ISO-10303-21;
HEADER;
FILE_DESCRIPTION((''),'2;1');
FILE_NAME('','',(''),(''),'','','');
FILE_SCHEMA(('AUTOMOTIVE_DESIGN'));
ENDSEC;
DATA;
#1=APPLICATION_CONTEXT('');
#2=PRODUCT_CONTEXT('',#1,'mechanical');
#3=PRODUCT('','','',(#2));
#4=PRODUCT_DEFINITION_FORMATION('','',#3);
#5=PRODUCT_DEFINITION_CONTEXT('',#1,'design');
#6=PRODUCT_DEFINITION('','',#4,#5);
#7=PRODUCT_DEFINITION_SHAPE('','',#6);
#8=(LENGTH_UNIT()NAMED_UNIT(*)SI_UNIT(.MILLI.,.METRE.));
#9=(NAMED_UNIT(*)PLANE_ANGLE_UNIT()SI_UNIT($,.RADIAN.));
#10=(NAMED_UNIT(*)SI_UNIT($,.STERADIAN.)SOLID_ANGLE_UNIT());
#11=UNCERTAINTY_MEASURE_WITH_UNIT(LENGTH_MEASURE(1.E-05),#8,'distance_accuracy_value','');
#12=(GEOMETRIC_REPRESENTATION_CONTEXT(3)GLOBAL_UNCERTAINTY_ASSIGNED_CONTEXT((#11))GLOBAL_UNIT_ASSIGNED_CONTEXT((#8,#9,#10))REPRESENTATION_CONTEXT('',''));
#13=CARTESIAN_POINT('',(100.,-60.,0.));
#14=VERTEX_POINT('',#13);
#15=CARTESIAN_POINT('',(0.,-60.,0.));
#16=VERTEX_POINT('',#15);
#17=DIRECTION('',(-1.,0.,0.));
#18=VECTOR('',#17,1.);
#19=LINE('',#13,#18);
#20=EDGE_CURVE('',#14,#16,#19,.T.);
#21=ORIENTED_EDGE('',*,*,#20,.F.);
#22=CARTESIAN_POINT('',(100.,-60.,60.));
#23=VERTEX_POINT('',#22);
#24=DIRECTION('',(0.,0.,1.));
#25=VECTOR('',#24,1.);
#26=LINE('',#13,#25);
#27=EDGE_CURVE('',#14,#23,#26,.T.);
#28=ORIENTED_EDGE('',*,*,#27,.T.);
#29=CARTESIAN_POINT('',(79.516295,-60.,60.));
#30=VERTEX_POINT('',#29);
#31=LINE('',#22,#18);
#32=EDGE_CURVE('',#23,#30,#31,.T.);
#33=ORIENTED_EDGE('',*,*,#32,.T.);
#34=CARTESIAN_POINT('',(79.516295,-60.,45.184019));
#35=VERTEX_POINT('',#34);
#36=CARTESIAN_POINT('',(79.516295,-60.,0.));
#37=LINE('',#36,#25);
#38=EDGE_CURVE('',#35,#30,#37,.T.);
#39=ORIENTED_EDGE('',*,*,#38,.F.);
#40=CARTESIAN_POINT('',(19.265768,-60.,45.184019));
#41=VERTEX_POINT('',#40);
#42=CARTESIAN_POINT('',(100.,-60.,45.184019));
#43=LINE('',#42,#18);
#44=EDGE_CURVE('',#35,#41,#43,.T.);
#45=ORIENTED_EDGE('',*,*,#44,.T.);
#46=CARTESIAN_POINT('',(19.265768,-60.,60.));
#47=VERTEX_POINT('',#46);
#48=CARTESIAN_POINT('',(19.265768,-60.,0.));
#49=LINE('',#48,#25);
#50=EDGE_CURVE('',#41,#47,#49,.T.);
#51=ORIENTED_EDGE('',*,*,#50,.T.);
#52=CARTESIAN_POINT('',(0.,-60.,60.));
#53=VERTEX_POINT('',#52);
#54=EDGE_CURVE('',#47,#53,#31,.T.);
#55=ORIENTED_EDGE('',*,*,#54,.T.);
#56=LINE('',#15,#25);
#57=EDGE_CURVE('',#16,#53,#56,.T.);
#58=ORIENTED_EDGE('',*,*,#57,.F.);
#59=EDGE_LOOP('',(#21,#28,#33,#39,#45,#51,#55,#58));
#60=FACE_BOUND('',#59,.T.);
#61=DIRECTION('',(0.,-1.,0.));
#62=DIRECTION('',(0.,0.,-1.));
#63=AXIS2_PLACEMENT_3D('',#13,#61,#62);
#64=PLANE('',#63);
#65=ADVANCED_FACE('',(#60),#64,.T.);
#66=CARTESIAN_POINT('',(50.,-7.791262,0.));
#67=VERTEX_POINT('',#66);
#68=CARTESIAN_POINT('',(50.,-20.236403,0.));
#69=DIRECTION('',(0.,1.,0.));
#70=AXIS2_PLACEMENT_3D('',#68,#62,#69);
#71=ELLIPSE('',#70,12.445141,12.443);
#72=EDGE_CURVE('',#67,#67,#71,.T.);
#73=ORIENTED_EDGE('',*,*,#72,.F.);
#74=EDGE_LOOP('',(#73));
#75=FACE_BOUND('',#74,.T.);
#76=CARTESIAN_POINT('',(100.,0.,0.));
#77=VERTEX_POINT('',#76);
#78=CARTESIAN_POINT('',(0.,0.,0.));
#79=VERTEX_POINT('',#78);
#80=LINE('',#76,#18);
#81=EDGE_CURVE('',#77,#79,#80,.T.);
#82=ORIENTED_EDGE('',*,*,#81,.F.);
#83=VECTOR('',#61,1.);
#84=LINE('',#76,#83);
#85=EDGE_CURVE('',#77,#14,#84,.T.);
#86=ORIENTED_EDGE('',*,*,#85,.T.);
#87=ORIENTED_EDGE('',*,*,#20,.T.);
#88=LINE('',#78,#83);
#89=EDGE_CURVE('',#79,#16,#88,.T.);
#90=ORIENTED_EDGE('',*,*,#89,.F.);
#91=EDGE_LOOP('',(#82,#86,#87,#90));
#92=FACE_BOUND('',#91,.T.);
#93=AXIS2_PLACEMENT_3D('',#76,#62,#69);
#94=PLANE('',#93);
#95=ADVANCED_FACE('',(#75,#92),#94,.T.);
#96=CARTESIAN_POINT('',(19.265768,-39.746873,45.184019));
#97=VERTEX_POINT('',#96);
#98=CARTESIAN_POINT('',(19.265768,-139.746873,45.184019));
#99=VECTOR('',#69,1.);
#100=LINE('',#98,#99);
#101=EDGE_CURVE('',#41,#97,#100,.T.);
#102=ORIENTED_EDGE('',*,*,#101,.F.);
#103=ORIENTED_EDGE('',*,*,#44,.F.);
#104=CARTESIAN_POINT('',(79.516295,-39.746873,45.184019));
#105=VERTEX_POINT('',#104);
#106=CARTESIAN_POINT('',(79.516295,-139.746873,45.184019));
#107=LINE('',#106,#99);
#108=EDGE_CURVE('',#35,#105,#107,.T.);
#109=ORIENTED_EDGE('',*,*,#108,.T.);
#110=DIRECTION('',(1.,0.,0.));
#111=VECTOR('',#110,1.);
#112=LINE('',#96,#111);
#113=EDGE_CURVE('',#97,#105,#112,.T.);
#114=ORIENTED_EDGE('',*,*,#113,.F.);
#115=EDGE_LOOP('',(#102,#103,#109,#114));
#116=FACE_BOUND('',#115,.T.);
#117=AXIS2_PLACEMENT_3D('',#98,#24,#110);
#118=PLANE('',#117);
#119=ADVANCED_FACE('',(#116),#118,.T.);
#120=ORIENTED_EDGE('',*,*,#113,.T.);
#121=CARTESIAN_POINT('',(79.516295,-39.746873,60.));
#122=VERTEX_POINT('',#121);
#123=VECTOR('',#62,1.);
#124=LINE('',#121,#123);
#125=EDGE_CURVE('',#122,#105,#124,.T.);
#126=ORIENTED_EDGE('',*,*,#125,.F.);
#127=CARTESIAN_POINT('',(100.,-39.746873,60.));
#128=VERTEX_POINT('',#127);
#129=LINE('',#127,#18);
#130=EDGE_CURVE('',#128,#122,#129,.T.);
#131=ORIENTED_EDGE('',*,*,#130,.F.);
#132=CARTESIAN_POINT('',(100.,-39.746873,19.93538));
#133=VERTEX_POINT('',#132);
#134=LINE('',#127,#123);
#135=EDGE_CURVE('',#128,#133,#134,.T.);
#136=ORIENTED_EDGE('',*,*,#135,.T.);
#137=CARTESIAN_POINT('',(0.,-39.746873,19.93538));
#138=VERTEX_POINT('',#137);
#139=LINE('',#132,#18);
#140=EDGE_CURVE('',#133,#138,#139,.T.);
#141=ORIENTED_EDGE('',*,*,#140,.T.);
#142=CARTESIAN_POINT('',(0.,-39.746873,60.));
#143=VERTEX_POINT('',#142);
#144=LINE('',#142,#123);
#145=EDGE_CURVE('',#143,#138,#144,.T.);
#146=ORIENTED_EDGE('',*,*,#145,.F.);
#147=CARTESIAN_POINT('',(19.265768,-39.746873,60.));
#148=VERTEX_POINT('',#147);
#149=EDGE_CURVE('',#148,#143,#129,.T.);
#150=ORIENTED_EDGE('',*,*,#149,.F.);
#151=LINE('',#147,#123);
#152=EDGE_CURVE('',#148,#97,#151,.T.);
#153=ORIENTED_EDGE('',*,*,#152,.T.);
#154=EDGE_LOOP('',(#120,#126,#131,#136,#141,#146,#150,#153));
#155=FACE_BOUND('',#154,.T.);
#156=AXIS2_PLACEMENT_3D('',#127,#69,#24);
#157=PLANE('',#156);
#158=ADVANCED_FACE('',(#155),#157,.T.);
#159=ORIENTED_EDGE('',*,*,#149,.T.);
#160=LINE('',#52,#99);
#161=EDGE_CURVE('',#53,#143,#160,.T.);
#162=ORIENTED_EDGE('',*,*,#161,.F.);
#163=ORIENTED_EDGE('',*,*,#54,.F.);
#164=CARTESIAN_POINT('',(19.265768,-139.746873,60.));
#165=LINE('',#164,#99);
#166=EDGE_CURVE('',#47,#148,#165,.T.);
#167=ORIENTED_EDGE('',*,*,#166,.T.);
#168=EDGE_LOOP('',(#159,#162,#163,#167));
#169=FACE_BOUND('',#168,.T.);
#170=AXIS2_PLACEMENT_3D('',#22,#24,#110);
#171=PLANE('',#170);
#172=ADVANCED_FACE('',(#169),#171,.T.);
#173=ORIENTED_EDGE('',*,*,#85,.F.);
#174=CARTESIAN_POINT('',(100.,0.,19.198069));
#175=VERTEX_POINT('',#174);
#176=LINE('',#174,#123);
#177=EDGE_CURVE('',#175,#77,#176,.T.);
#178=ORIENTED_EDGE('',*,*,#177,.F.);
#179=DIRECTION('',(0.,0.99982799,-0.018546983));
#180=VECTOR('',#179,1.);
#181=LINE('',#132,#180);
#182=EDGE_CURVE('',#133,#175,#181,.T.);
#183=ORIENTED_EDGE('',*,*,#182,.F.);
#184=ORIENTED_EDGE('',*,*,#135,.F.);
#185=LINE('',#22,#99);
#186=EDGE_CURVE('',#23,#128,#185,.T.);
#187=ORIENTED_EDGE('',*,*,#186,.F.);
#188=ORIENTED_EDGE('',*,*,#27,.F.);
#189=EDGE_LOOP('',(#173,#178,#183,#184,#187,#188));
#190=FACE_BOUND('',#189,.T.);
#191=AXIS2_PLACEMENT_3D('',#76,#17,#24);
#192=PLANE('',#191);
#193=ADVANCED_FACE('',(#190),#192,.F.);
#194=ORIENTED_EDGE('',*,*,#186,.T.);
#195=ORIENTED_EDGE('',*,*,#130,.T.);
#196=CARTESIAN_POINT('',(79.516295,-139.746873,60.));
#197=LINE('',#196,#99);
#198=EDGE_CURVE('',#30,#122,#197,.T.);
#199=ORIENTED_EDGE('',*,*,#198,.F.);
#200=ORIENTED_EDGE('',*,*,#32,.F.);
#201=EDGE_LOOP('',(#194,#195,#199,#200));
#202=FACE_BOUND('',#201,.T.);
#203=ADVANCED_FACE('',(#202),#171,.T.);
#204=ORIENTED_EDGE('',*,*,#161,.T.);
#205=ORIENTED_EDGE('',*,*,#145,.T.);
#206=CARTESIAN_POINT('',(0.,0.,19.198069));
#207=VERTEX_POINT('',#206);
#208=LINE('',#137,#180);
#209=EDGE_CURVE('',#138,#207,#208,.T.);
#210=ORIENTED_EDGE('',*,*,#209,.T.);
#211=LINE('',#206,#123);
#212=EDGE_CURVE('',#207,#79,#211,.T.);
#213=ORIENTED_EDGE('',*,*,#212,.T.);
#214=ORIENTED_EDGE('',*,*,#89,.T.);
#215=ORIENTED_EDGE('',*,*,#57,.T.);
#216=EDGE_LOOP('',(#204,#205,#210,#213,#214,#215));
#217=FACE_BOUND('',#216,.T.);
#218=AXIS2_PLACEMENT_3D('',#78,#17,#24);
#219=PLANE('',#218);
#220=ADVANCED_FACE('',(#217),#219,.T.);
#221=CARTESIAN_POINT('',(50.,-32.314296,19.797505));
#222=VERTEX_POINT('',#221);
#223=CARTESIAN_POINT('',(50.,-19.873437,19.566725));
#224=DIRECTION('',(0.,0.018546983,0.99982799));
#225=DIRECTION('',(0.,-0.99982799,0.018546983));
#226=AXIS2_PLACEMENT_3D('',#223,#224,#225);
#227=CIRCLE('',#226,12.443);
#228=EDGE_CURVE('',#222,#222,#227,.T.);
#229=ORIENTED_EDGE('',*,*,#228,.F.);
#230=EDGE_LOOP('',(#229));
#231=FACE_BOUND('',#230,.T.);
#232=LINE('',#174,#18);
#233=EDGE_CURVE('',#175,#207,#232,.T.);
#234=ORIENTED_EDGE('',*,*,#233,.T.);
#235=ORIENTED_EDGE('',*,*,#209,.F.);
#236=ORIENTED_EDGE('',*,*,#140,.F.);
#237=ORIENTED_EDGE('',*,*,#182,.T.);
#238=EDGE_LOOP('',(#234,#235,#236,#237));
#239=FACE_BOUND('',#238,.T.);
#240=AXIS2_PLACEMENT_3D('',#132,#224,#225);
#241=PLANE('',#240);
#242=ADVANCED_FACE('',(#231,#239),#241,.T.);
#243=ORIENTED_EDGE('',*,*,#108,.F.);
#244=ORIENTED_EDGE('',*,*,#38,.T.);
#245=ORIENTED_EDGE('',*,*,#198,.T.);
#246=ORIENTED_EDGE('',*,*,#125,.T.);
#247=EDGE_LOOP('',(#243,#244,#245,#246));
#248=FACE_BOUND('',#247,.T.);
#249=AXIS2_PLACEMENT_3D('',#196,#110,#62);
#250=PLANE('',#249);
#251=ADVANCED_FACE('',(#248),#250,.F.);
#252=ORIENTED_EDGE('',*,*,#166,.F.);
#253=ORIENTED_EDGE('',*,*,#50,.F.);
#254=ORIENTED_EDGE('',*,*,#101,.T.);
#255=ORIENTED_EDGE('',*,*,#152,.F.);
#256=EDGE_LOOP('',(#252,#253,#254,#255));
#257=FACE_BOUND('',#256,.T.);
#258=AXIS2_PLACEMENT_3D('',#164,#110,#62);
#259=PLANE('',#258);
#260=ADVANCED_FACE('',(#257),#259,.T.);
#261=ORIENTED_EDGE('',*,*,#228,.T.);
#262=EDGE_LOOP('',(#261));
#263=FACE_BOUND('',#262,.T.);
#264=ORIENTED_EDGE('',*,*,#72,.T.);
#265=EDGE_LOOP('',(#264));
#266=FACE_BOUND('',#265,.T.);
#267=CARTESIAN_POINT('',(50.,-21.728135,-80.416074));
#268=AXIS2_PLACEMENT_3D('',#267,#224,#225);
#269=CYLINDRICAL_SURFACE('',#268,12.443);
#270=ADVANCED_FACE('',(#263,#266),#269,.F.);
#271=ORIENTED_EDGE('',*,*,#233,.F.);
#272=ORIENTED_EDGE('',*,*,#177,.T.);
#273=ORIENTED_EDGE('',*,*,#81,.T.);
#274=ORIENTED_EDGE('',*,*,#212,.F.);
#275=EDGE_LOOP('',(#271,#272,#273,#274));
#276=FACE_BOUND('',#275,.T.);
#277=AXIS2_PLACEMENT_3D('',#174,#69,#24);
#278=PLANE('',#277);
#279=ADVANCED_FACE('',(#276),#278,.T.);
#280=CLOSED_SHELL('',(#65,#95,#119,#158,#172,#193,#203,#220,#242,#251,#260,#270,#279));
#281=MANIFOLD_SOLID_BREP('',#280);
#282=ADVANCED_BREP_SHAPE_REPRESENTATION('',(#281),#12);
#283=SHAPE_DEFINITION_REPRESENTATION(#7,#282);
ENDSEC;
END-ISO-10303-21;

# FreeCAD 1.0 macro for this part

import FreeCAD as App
import Part
import Sketcher

V = App.Vector
Q = App.Units.Quantity


def add_polygon(sketch, points):
    """Adds a closed chain of lines whose ends are joined by coincident constraints."""
    first, n = sketch.GeometryCount, len(points)
    for a, b in zip(points, points[1:] + points[:1]):
        sketch.addGeometry(Part.LineSegment(App.Vector(*a, 0), App.Vector(*b, 0)), False)
    for i in range(n):
        sketch.addConstraint(Sketcher.Constraint("Coincident", first + i, 2, first + (i + 1) % n, 1))

doc = App.newDocument("Part")
body = doc.addObject("PartDesign::Body", "Body")

sketch1 = doc.addObject("Sketcher::SketchObject", "Sketch")
body.addObject(sketch1)
sketch1.AttachmentSupport = (doc.YZ_Plane, [""])
sketch1.MapMode = "FlatFace"
add_polygon(sketch1, [(-60, 0), (0, 0), (0, 19), (-40, 20), (-40, 60), (-60, 60)])
sketch1.addConstraint([
    Sketcher.Constraint("Horizontal", 0),
    Sketcher.Constraint("Vertical", 1),
    Sketcher.Constraint("Vertical", 3),
    Sketcher.Constraint("Horizontal", 4),
    Sketcher.Constraint("Vertical", 5),
    Sketcher.Constraint("Coincident", 0, 2, -1, 1),
    Sketcher.Constraint("Equal", 0, 5),
    Sketcher.Constraint("DistanceX", 0, 1, 0, 2, Q("60 mm")),
    Sketcher.Constraint("DistanceY", 1, 1, 1, 2, Q("19.198069 mm")),
    Sketcher.Constraint("DistanceY", 3, 1, 3, 2, Q("40.06462 mm")),
    Sketcher.Constraint("Distance", 2, Q("39.753711 mm")),
])
pad1 = doc.addObject("PartDesign::Pad", "Pad")
body.addObject(pad1)
pad1.Profile = sketch1
pad1.Length = 100

sketch2 = doc.addObject("Sketcher::SketchObject", "Sketch001")
body.addObject(sketch2)
sketch2.Placement = App.Placement(V(0, 0.356005, 19.191465), App.Rotation(V(1, 0, 0), V(0, 0.99982799, -0.018546983), V(0, 0.018546983, 0.99982799), "ZXY"))
sketch2.addGeometry(Part.Circle(V(50, -20, 0), V(0, 0, 1), 12), False)
add_polygon(sketch2, [(-4, -67), (-4, -87), (58, -87), (58, -67)])
sketch2.addConstraint([
    Sketcher.Constraint("Vertical", 1),
    Sketcher.Constraint("Horizontal", 2),
    Sketcher.Constraint("Vertical", 3),
    Sketcher.Constraint("Horizontal", 4),
    Sketcher.Constraint("Diameter", 0, Q("24.886 mm")),
    Sketcher.Constraint("DistanceX", -1, 1, 0, 3, Q("50 mm")),
    Sketcher.Constraint("DistanceX", 2, 1, 2, 2, Q("62.427684 mm")),
    Sketcher.Constraint("DistanceY", 1, 2, 1, 1, Q("20.048713 mm")),
    Sketcher.Constraint("DistanceY", 0, 3, -1, 1, Q("20.232922 mm")),
    Sketcher.Constraint("DistanceX", 1, 2, -1, 1, Q("4.061878 mm")),
    Sketcher.Constraint("DistanceY", 1, 2, -1, 1, Q("86.89514 mm")),
])
pocket1 = doc.addObject("PartDesign::Pocket", "Pocket")
body.addObject(pocket1)
pocket1.Profile = sketch2
pocket1.Length = 100

sketch3 = doc.addObject("Sketcher::SketchObject", "Sketch002")
body.addObject(sketch3)
sketch3.AttachmentSupport = (doc.XZ_Plane, [""])
sketch3.MapMode = "FlatFace"
sketch3.AttachmentOffset = App.Placement(V(0, 0, 39.746873), App.Rotation())
add_polygon(sketch3, [(19, 45), (19, 60), (80, 60), (80, 45)])
sketch3.addConstraint([
    Sketcher.Constraint("Vertical", 0),
    Sketcher.Constraint("Horizontal", 1),
    Sketcher.Constraint("Vertical", 2),
    Sketcher.Constraint("Horizontal", 3),
    Sketcher.Constraint("DistanceY", -1, 1, 0, 2, Q("60 mm")),
    Sketcher.Constraint("DistanceY", 0, 1, 0, 2, Q("14.815981 mm")),
    Sketcher.Constraint("DistanceX", 1, 1, 1, 2, Q("60.250527 mm")),
    Sketcher.Constraint("DistanceX", -1, 1, 0, 2, Q("19.265768 mm")),
])
pocket2 = doc.addObject("PartDesign::Pocket", "Pocket001")
body.addObject(pocket2)
pocket2.Profile = sketch3
pocket2.Length = 100
pocket2.Reversed = True

doc.recompute()
